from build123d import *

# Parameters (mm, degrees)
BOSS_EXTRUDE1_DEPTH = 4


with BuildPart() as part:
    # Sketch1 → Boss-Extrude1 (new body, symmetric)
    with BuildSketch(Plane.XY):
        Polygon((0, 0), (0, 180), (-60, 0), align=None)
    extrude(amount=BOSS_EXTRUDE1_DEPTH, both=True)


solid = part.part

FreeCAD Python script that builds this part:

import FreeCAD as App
import Part
import Sketcher
Q = App.Units.Quantity

doc = App.newDocument("Part")
body = doc.addObject("PartDesign::Body", "Body")

# Sketch on XY plane
sketch1 = body.newObject("Sketcher::SketchObject", "Sketch")
sketch1.AttachmentSupport = (doc.getObject("XY_Plane"), [""])
sketch1.MapMode = "FlatFace"
sketch1.addGeometry([
    Part.LineSegment(App.Vector(0, 0, 0), App.Vector(0, 180, 0)),
    Part.LineSegment(App.Vector(0, 180, 0), App.Vector(-60, 0, 0)),
    Part.LineSegment(App.Vector(-60, 0, 0), App.Vector(0, 0, 0)),
], False)
sketch1.addConstraint([
    Sketcher.Constraint("Coincident", 0, 2, 1, 1),
    Sketcher.Constraint("Coincident", 1, 2, 2, 1),
    Sketcher.Constraint("Coincident", 2, 2, 0, 1),
    Sketcher.Constraint("Vertical", 0),
    Sketcher.Constraint("Horizontal", 2),
    Sketcher.Constraint("Coincident", 2, 2, -1, 1),
    Sketcher.Constraint("DistanceX", 2, 1, 2, 2, Q("60 mm")),
    Sketcher.Constraint("DistanceY", 0, 1, 0, 2, Q("180 mm")),
])
pad1 = body.newObject("PartDesign::Pad", "Pad")
pad1.Profile = sketch1
pad1.Length = 8
pad1.Midplane = True

doc.recompute()
